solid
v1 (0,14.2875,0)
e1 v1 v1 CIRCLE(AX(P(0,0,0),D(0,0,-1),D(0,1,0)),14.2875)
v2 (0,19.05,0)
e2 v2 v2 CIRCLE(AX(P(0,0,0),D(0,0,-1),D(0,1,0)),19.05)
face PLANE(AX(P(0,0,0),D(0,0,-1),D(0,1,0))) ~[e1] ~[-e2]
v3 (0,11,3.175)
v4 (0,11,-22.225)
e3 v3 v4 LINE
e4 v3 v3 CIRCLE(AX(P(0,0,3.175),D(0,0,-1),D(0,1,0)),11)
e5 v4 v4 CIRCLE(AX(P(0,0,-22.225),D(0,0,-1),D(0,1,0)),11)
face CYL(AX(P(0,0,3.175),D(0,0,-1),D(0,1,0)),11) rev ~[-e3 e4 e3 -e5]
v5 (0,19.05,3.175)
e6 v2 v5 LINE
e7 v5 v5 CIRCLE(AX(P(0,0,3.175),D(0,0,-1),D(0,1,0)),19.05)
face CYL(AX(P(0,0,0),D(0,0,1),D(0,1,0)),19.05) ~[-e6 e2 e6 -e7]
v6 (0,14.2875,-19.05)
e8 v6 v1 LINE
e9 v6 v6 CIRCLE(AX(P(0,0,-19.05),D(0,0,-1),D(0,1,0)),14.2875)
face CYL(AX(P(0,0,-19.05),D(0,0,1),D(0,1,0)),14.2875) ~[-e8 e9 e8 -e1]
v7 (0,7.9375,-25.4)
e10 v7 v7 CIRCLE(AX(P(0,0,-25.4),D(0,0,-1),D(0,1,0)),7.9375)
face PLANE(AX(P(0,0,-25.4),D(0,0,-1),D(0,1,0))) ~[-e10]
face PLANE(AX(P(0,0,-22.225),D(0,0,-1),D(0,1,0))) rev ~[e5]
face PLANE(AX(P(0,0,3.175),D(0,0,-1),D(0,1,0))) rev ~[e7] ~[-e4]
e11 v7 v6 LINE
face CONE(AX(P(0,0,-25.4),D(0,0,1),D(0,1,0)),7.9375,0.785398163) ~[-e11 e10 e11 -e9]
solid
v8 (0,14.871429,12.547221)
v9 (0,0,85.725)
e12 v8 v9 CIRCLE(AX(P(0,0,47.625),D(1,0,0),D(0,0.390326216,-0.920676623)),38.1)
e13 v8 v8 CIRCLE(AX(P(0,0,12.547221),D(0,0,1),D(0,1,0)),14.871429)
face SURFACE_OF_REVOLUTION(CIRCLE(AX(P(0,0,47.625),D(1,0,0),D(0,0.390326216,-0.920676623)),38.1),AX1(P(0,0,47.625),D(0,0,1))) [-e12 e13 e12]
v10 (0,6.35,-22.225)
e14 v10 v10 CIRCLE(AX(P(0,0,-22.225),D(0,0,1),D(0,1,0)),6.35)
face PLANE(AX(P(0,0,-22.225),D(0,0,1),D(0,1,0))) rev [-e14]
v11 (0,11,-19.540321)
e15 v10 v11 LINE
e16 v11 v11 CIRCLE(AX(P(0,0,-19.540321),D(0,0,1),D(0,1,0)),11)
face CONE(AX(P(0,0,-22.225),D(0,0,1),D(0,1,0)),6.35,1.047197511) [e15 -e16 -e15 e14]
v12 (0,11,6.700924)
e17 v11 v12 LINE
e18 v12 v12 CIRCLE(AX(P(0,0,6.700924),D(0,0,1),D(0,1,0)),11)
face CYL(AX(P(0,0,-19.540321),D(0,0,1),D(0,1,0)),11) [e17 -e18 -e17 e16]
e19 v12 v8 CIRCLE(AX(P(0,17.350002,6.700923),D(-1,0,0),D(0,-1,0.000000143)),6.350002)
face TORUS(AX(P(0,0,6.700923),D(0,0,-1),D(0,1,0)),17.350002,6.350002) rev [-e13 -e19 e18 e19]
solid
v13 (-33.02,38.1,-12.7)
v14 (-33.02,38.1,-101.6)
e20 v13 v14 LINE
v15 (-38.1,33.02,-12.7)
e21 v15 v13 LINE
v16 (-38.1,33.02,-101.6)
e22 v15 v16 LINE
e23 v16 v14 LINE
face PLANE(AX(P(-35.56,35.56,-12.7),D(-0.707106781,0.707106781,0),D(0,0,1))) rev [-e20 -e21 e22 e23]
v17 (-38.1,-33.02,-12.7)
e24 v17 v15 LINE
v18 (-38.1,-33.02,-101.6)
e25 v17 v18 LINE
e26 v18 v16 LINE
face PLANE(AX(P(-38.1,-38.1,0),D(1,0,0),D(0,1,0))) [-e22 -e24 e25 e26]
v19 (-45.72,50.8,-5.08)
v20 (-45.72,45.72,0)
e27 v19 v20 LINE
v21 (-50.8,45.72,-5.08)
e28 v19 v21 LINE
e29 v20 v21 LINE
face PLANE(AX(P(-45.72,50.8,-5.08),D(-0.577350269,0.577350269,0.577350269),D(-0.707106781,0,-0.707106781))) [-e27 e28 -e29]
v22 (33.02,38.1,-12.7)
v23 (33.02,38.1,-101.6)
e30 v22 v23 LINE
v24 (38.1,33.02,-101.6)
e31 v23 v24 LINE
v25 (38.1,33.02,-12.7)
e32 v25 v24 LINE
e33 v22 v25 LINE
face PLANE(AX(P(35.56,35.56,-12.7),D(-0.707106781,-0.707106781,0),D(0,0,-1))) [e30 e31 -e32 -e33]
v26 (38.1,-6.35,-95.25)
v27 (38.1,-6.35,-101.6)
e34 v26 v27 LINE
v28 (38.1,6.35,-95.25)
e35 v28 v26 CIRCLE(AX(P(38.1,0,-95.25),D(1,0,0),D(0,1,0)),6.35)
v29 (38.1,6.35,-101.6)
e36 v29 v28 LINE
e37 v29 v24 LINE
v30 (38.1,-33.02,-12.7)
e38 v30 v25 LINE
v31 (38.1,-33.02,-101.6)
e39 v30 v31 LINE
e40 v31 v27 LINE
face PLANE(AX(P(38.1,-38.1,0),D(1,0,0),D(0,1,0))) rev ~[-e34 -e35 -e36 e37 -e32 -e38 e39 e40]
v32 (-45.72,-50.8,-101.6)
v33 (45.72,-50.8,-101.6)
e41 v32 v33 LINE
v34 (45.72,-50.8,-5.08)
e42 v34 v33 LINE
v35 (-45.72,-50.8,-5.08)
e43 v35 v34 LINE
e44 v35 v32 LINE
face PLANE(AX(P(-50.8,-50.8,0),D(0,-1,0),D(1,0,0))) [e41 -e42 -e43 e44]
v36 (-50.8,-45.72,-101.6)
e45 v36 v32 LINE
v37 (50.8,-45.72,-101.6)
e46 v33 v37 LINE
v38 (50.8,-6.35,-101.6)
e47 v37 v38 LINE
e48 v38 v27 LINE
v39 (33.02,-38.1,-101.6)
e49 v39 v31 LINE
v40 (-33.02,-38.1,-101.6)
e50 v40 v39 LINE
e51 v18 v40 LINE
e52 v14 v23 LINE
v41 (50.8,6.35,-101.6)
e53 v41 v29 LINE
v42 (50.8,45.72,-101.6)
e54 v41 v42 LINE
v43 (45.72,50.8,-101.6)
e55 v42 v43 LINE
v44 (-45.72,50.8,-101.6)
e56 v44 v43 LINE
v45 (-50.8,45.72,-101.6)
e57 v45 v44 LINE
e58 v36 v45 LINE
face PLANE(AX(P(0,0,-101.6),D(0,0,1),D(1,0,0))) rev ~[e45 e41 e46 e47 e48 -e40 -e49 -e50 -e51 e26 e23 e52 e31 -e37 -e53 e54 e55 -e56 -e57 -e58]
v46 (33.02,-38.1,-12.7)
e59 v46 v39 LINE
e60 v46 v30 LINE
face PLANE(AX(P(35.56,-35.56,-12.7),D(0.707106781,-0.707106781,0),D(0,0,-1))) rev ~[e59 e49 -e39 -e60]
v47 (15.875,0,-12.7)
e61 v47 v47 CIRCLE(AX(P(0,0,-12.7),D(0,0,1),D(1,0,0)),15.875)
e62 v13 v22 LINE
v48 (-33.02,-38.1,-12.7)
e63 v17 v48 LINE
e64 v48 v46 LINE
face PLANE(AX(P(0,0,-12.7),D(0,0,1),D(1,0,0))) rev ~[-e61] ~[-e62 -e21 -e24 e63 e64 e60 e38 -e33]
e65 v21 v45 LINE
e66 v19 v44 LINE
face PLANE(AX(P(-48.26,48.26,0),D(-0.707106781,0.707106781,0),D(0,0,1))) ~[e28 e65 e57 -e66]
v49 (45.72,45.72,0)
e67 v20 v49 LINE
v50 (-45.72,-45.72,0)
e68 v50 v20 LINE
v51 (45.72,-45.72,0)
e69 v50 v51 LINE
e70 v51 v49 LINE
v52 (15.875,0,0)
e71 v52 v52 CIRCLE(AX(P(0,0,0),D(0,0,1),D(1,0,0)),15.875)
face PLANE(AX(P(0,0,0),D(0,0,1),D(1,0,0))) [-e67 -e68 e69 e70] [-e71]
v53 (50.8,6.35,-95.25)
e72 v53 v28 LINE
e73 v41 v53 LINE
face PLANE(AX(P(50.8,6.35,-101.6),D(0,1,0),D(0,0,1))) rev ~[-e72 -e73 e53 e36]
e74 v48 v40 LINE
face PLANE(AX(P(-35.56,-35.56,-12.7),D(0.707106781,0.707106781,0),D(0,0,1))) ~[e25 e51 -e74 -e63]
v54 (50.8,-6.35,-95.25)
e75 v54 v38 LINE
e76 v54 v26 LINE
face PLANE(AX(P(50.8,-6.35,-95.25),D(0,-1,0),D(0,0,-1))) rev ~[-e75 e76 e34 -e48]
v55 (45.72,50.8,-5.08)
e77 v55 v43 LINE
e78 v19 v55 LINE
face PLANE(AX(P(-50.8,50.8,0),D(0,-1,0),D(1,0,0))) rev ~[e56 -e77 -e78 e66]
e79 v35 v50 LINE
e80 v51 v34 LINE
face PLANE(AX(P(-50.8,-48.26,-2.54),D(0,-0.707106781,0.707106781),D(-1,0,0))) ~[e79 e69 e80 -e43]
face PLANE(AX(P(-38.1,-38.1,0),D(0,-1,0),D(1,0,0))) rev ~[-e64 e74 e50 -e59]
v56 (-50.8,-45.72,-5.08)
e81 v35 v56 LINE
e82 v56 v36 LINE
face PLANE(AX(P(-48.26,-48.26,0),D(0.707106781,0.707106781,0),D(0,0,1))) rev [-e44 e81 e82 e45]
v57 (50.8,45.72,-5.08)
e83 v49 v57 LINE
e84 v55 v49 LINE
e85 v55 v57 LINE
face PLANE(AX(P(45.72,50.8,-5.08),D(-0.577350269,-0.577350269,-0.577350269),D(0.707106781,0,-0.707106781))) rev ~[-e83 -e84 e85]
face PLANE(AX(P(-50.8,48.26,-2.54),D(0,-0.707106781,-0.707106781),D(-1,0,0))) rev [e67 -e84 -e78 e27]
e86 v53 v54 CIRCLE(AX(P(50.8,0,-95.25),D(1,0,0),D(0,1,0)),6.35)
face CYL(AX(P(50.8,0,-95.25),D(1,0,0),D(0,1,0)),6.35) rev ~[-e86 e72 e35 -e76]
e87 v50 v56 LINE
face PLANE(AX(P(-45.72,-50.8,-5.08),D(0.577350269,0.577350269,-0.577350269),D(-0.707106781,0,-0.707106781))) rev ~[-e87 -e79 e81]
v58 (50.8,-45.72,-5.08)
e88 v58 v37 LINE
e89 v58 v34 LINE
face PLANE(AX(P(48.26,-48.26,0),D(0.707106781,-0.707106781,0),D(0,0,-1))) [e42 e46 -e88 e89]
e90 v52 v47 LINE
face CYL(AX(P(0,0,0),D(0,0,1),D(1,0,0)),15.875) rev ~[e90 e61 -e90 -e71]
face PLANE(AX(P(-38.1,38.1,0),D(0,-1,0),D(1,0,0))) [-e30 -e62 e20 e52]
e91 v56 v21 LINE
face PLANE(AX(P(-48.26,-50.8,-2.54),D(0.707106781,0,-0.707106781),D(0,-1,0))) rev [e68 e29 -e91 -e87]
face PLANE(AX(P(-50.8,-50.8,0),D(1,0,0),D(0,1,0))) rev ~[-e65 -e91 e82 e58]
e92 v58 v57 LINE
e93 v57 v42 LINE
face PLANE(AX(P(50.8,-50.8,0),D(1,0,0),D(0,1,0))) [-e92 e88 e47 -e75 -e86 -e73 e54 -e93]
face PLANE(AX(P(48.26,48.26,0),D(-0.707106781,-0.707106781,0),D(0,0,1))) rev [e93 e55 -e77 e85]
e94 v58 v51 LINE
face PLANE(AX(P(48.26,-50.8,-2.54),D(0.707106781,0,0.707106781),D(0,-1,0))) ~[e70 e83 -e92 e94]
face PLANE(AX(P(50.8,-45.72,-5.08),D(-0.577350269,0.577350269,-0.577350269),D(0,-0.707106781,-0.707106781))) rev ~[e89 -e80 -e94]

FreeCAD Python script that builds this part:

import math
import FreeCAD as App
import Part
import Sketcher
from FreeCAD import Vector
Q = App.Units.Quantity


def edges_at(feature, points):
    """Names of the edges that pass closest to the given points."""
    edges = feature.Shape.Edges
    near = lambda p: min(range(len(edges)), key=lambda i: edges[i].distToShape(Part.Vertex(*p))[0])
    return sorted({f"Edge{near(p) + 1}" for p in points})

doc = App.newDocument("Part")
params = doc.addObject("Spreadsheet::Sheet", "Params")
for row, (alias, value) in enumerate([
    ("sketch1_width", "4 in"),
    ("sketch1_width2", "3 in"),
    ("pad1_length", "4 in"),
    ("sketch2_diameter", "1.25 in"),
    ("sketch2_width", "3 in"),
    ("pad2_length", "0.5 in"),
    ("sketch3_radius", "0.25 in"),
    ("sketch3_height", "0.25 in"),
    ("pocket1_length", "0.5 in"),
    ("chamfer_size", "0.2 in"),
    ("sketch4_height", "1 in"),
    ("sketch4_height2", "0.75 in"),
    ("sketch4_width", "0.3125 in"),
    ("sketch4_width2", "0.1875 in"),
    ("sketch4_height3", "0.125 in"),
    ("revolution_angle", "360 deg"),
    ("sketch5_radius", "1.5 in"),
    ("sketch5_radius2", "0.2500001 in"),
    ("sketch5_width", "0.25 in"),
    ("sketch5_height", "4.25 in"),
    ("revolution2_angle", "360 deg"),
], start=1):
    params.set(f"A{row}", alias)
    params.set(f"B{row}", "=" + value)
    params.setAlias(f"B{row}", alias)

body = doc.addObject("PartDesign::Body", "Body")

# Sketch on XY plane
sketch1 = doc.addObject("Sketcher::SketchObject", "Sketch")
body.addObject(sketch1)
sketch1.AttachmentSupport = (doc.XY_Plane, [""])
sketch1.MapMode = "FlatFace"
sketch1.addGeometry(Part.LineSegment(Vector(-50.8, 50.8, 0), Vector(-50.8, -50.8, 0)), False)
sketch1.addGeometry(Part.LineSegment(Vector(-50.8, -50.8, 0), Vector(50.8, -50.8, 0)), False)
sketch1.addGeometry(Part.LineSegment(Vector(50.8, -50.8, 0), Vector(50.8, 50.8, 0)), False)
sketch1.addGeometry(Part.LineSegment(Vector(50.8, 50.8, 0), Vector(-50.8, 50.8, 0)), False)
sketch1.addGeometry(Part.LineSegment(Vector(38.1, -38.1, 0), Vector(-38.1, -38.1, 0)), False)
sketch1.addGeometry(Part.LineSegment(Vector(-38.1, -38.1, 0), Vector(-38.1, 38.1, 0)), False)
sketch1.addGeometry(Part.LineSegment(Vector(-38.1, 38.1, 0), Vector(38.1, 38.1, 0)), False)
sketch1.addGeometry(Part.LineSegment(Vector(38.1, 38.1, 0), Vector(38.1, -38.1, 0)), False)
sketch1.addConstraint(Sketcher.Constraint("Coincident", 0, 2, 1, 1))
sketch1.addConstraint(Sketcher.Constraint("Coincident", 1, 2, 2, 1))
sketch1.addConstraint(Sketcher.Constraint("Coincident", 2, 2, 3, 1))
sketch1.addConstraint(Sketcher.Constraint("Coincident", 3, 2, 0, 1))
sketch1.addConstraint(Sketcher.Constraint("Coincident", 4, 2, 5, 1))
sketch1.addConstraint(Sketcher.Constraint("Coincident", 5, 2, 6, 1))
sketch1.addConstraint(Sketcher.Constraint("Coincident", 6, 2, 7, 1))
sketch1.addConstraint(Sketcher.Constraint("Coincident", 7, 2, 4, 1))
sketch1.addConstraint(Sketcher.Constraint("Vertical", 0))
sketch1.addConstraint(Sketcher.Constraint("Horizontal", 1))
sketch1.addConstraint(Sketcher.Constraint("Vertical", 2))
sketch1.addConstraint(Sketcher.Constraint("Horizontal", 3))
sketch1.addConstraint(Sketcher.Constraint("Horizontal", 4))
sketch1.addConstraint(Sketcher.Constraint("Vertical", 5))
sketch1.addConstraint(Sketcher.Constraint("Horizontal", 6))
sketch1.addConstraint(Sketcher.Constraint("Vertical", 7))
sketch1.addConstraint(Sketcher.Constraint("Symmetric", 0, 2, 2, 2, -1, 1))
sketch1.addConstraint(Sketcher.Constraint("Symmetric", 4, 2, 6, 2, -1, 1))
sketch1.addConstraint(Sketcher.Constraint("Equal", 3, 0))
sketch1.addConstraint(Sketcher.Constraint("Equal", 6, 5))
sketch1.addConstraint(Sketcher.Constraint("DistanceX", 1, 1, 1, 2, Q("4 in")))
sketch1.addConstraint(Sketcher.Constraint("DistanceX", 4, 2, 4, 1, Q("3 in")))
sketch1.setExpression("Constraints[20]", "Params.sketch1_width")
sketch1.setExpression("Constraints[21]", "Params.sketch1_width2")
pad1 = doc.addObject("PartDesign::Pad", "Pad")
body.addObject(pad1)
pad1.Profile = sketch1
pad1.setExpression("Length", "Params.pad1_length")
pad1.Reversed = True

# Sketch on XY plane
sketch2 = doc.addObject("Sketcher::SketchObject", "Sketch001")
body.addObject(sketch2)
sketch2.AttachmentSupport = (doc.XY_Plane, [""])
sketch2.MapMode = "FlatFace"
sketch2.addGeometry(Part.LineSegment(Vector(-38.1, 38.1, 0), Vector(-38.1, -38.1, 0)), False)
sketch2.addGeometry(Part.LineSegment(Vector(-38.1, -38.1, 0), Vector(38.1, -38.1, 0)), False)
sketch2.addGeometry(Part.LineSegment(Vector(38.1, -38.1, 0), Vector(38.1, 38.1, 0)), False)
sketch2.addGeometry(Part.LineSegment(Vector(38.1, 38.1, 0), Vector(-38.1, 38.1, 0)), False)
sketch2.addGeometry(Part.Circle(Vector(0, 0, 0), Vector(0, 0, 1), 15.875), False)
sketch2.addConstraint(Sketcher.Constraint("Coincident", 0, 2, 1, 1))
sketch2.addConstraint(Sketcher.Constraint("Coincident", 1, 2, 2, 1))
sketch2.addConstraint(Sketcher.Constraint("Coincident", 2, 2, 3, 1))
sketch2.addConstraint(Sketcher.Constraint("Coincident", 3, 2, 0, 1))
sketch2.addConstraint(Sketcher.Constraint("Vertical", 0))
sketch2.addConstraint(Sketcher.Constraint("Horizontal", 1))
sketch2.addConstraint(Sketcher.Constraint("Vertical", 2))
sketch2.addConstraint(Sketcher.Constraint("Horizontal", 3))
sketch2.addConstraint(Sketcher.Constraint("Coincident", 4, 3, -1, 1))
sketch2.addConstraint(Sketcher.Constraint("Symmetric", 0, 2, 2, 2, -1, 1))
sketch2.addConstraint(Sketcher.Constraint("Equal", 3, 0))
sketch2.addConstraint(Sketcher.Constraint("Diameter", 4, Q("1.25 in")))
sketch2.addConstraint(Sketcher.Constraint("DistanceX", 1, 1, 1, 2, Q("3 in")))
sketch2.setExpression("Constraints[11]", "Params.sketch2_diameter")
sketch2.setExpression("Constraints[12]", "Params.sketch2_width")
pad2 = doc.addObject("PartDesign::Pad", "Pad001")
body.addObject(pad2)
pad2.Profile = sketch2
pad2.setExpression("Length", "Params.pad2_length")
pad2.Reversed = True

# Sketch on YZ plane
sketch3 = doc.addObject("Sketcher::SketchObject", "Sketch002")
body.addObject(sketch3)
sketch3.AttachmentSupport = (doc.YZ_Plane, [""])
sketch3.MapMode = "FlatFace"
sketch3.AttachmentOffset = App.Placement(Vector(0, 0, 2 * 25.4), App.Rotation())
sketch3.addGeometry(Part.LineSegment(Vector(-6.35, -95.25, 0), Vector(-6.35, -101.6, 0)), False)
sketch3.addGeometry(Part.LineSegment(Vector(-6.35, -101.6, 0), Vector(6.35, -101.6, 0)), False)
sketch3.addGeometry(Part.LineSegment(Vector(6.35, -101.6, 0), Vector(6.35, -95.25, 0)), False)
sketch3.addGeometry(Part.ArcOfCircle(Part.Circle(Vector(0, -95.25, 0), Vector(0, 0, 1), 6.35), math.radians(0), math.radians(180)), False)
sketch3.addConstraint(Sketcher.Constraint("Coincident", 0, 2, 1, 1))
sketch3.addConstraint(Sketcher.Constraint("Coincident", 1, 2, 2, 1))
sketch3.addConstraint(Sketcher.Constraint("Tangent", 2, 2, 3, 1))
sketch3.addConstraint(Sketcher.Constraint("Tangent", 3, 2, 0, 1))
sketch3.addConstraint(Sketcher.Constraint("Vertical", 0))
sketch3.addConstraint(Sketcher.Constraint("Horizontal", 1))
sketch3.addConstraint(Sketcher.Constraint("Vertical", 2))
sketch3.addConstraint(Sketcher.Constraint("PointOnObject", 3, 3, -2))
sketch3.addConstraint(Sketcher.Constraint("Radius", 3, Q("0.25 in")))
sketch3.addConstraint(Sketcher.Constraint("DistanceY", 0, 2, -1, 1, Q("4 in")))
sketch3.addConstraint(Sketcher.Constraint("DistanceY", 0, 2, 0, 1, Q("0.25 in")))
sketch3.setExpression("Constraints[8]", "Params.sketch3_radius")
sketch3.setExpression("Constraints[10]", "Params.sketch3_height")
pocket1 = doc.addObject("PartDesign::Pocket", "Pocket")
body.addObject(pocket1)
pocket1.Profile = sketch3
pocket1.setExpression("Length", "Params.pocket1_length")
doc.recompute()

chamfer = doc.addObject("PartDesign::Chamfer", "Chamfer")
body.addObject(chamfer)
chamfer.Base = (pocket1, edges_at(pocket1, [
    (-50.8, 0, 0),
    (0, -50.8, 0),
    (50.8, 0, 0),
    (0, 50.8, 0),
    (-50.8, -50.8, -50.8),
    (50.8, -50.8, -50.8),
    (-50.8, 50.8, -50.8),
    (50.8, 50.8, -50.8),
    (38.1, -38.1, -57.15),
    (-38.1, -38.1, -57.15),
    (38.1, 38.1, -57.15),
    (-38.1, 38.1, -57.15),
]))
chamfer.setExpression("Size", "Params.chamfer_size")
body2 = doc.addObject("PartDesign::Body", "Body001")

# Sketch on YZ plane
sketch4 = doc.addObject("Sketcher::SketchObject", "Sketch003")
body2.addObject(sketch4)
sketch4.AttachmentSupport = (doc.getObject("YZ_Plane001"), [""])
sketch4.MapMode = "FlatFace"
sketch4.addGeometry(Part.LineSegment(Vector(11, -22.225, 0), Vector(0, -22.225, 0)), False)
sketch4.addGeometry(Part.LineSegment(Vector(0, -22.225, 0), Vector(0, -25.4, 0)), False)
sketch4.addGeometry(Part.LineSegment(Vector(0, -25.4, 0), Vector(7.9375, -25.4, 0)), False)
sketch4.addGeometry(Part.LineSegment(Vector(7.9375, -25.4, 0), Vector(14.2875, -19.05, 0)), False)
sketch4.addGeometry(Part.LineSegment(Vector(14.2875, -19.05, 0), Vector(14.2875, 0, 0)), False)
sketch4.addGeometry(Part.LineSegment(Vector(14.2875, 0, 0), Vector(19.05, 0, 0)), False)
sketch4.addGeometry(Part.LineSegment(Vector(19.05, 0, 0), Vector(19.05, 3.175, 0)), False)
sketch4.addGeometry(Part.LineSegment(Vector(19.05, 3.175, 0), Vector(11, 3.175, 0)), False)
sketch4.addGeometry(Part.LineSegment(Vector(11, 3.175, 0), Vector(11, -22.225, 0)), False)
sketch4.addConstraint(Sketcher.Constraint("Coincident", 0, 2, 1, 1))
sketch4.addConstraint(Sketcher.Constraint("Coincident", 1, 2, 2, 1))
sketch4.addConstraint(Sketcher.Constraint("Coincident", 2, 2, 3, 1))
sketch4.addConstraint(Sketcher.Constraint("Coincident", 3, 2, 4, 1))
sketch4.addConstraint(Sketcher.Constraint("Coincident", 4, 2, 5, 1))
sketch4.addConstraint(Sketcher.Constraint("Coincident", 5, 2, 6, 1))
sketch4.addConstraint(Sketcher.Constraint("Coincident", 6, 2, 7, 1))
sketch4.addConstraint(Sketcher.Constraint("Coincident", 7, 2, 8, 1))
sketch4.addConstraint(Sketcher.Constraint("Coincident", 8, 2, 0, 1))
sketch4.addConstraint(Sketcher.Constraint("Horizontal", 0))
sketch4.addConstraint(Sketcher.Constraint("Vertical", 1))
sketch4.addConstraint(Sketcher.Constraint("Horizontal", 2))
sketch4.addConstraint(Sketcher.Constraint("Vertical", 4))
sketch4.addConstraint(Sketcher.Constraint("Horizontal", 5))
sketch4.addConstraint(Sketcher.Constraint("Vertical", 6))
sketch4.addConstraint(Sketcher.Constraint("Horizontal", 7))
sketch4.addConstraint(Sketcher.Constraint("Vertical", 8))
sketch4.addConstraint(Sketcher.Constraint("PointOnObject", 0, 2, -2))
sketch4.addConstraint(Sketcher.Constraint("PointOnObject", 4, 2, -1))
sketch4.addConstraint(Sketcher.Constraint("Equal", 1, 6))
sketch4.addConstraint(Sketcher.Constraint("DistanceY", 8, 2, 8, 1, Q("1 in")))
sketch4.addConstraint(Sketcher.Constraint("Angle", 3, Q("45 deg")))
sketch4.addConstraint(Sketcher.Constraint("DistanceY", 4, 1, 4, 2, Q("0.75 in")))
sketch4.addConstraint(Sketcher.Constraint("DistanceX", 2, 1, 2, 2, Q("0.3125 in")))
sketch4.addConstraint(Sketcher.Constraint("DistanceX", 5, 1, 5, 2, Q("0.1875 in")))
sketch4.addConstraint(Sketcher.Constraint("DistanceY", 1, 2, 1, 1, Q("0.125 in")))
sketch4.addConstraint(Sketcher.Constraint("DistanceX", 0, 2, 0, 1, Q("11 mm")))
sketch4.setExpression("Constraints[20]", "Params.sketch4_height")
sketch4.setExpression("Constraints[22]", "Params.sketch4_height2")
sketch4.setExpression("Constraints[23]", "Params.sketch4_width")
sketch4.setExpression("Constraints[24]", "Params.sketch4_width2")
sketch4.setExpression("Constraints[25]", "Params.sketch4_height3")
revolution = doc.addObject("PartDesign::Revolution", "Revolution")
body2.addObject(revolution)
revolution.Profile = sketch4
revolution.ReferenceAxis = (sketch4, ["V_Axis"])
revolution.setExpression("Angle", "Params.revolution_angle")
body3 = doc.addObject("PartDesign::Body", "Body002")

# Sketch on YZ plane
sketch5 = doc.addObject("Sketcher::SketchObject", "Sketch004")
body3.addObject(sketch5)
sketch5.AttachmentSupport = (doc.getObject("YZ_Plane002"), [""])
sketch5.MapMode = "FlatFace"
sketch5.addGeometry(Part.ArcOfCircle(Part.Circle(Vector(17.350002, 6.700923, 0), Vector(0, 0, 1), 6.350002), math.radians(112.974805), math.radians(179.999992)), False)
sketch5.addGeometry(Part.ArcOfCircle(Part.Circle(Vector(0, 47.625, 0), Vector(0, 0, 1), 38.1), math.radians(-67.025201), math.radians(90)), False)
sketch5.addGeometry(Part.LineSegment(Vector(0, 85.725, 0), Vector(0, -22.225, 0)), False)
sketch5.addGeometry(Part.LineSegment(Vector(0, -22.225, 0), Vector(6.35, -22.225, 0)), False)
sketch5.addGeometry(Part.LineSegment(Vector(6.35, -22.225, 0), Vector(11, -19.540321, 0)), False)
sketch5.addGeometry(Part.LineSegment(Vector(11, -19.540321, 0), Vector(11, 6.700924, 0)), False)
sketch5.addConstraint(Sketcher.Constraint("Tangent", 0, 1, 1, 1))
sketch5.addConstraint(Sketcher.Constraint("Coincident", 1, 2, 2, 1))
sketch5.addConstraint(Sketcher.Constraint("Coincident", 2, 2, 3, 1))
sketch5.addConstraint(Sketcher.Constraint("Coincident", 3, 2, 4, 1))
sketch5.addConstraint(Sketcher.Constraint("Coincident", 4, 2, 5, 1))
sketch5.addConstraint(Sketcher.Constraint("Tangent", 5, 2, 0, 2))
sketch5.addConstraint(Sketcher.Constraint("Vertical", 2))
sketch5.addConstraint(Sketcher.Constraint("Horizontal", 3))
sketch5.addConstraint(Sketcher.Constraint("Vertical", 5))
sketch5.addConstraint(Sketcher.Constraint("PointOnObject", 1, 3, -2))
sketch5.addConstraint(Sketcher.Constraint("PointOnObject", 1, 2, -2))
sketch5.addConstraint(Sketcher.Constraint("Radius", 1, Q("1.5 in")))
sketch5.addConstraint(Sketcher.Constraint("Radius", 0, Q("0.2500001 in")))
sketch5.addConstraint(Sketcher.Constraint("Angle", 4, Q("30.000002 deg")))
sketch5.addConstraint(Sketcher.Constraint("DistanceX", 3, 1, 3, 2, Q("0.25 in")))
sketch5.addConstraint(Sketcher.Constraint("DistanceY", 2, 2, 2, 1, Q("4.25 in")))
sketch5.addConstraint(Sketcher.Constraint("DistanceY", -1, 1, 1, 3, Q("1.875 in")))
sketch5.addConstraint(Sketcher.Constraint("DistanceX", -1, 1, 0, 3, Q("17.350002 mm")))
sketch5.setExpression("Constraints[11]", "Params.sketch5_radius")
sketch5.setExpression("Constraints[12]", "Params.sketch5_radius2")
sketch5.setExpression("Constraints[14]", "Params.sketch5_width")
sketch5.setExpression("Constraints[15]", "Params.sketch5_height")
revolution2 = doc.addObject("PartDesign::Revolution", "Revolution001")
body3.addObject(revolution2)
revolution2.Profile = sketch5
revolution2.ReferenceAxis = (sketch5, ["V_Axis"])
revolution2.setExpression("Angle", "Params.revolution2_angle")

doc.recompute()
